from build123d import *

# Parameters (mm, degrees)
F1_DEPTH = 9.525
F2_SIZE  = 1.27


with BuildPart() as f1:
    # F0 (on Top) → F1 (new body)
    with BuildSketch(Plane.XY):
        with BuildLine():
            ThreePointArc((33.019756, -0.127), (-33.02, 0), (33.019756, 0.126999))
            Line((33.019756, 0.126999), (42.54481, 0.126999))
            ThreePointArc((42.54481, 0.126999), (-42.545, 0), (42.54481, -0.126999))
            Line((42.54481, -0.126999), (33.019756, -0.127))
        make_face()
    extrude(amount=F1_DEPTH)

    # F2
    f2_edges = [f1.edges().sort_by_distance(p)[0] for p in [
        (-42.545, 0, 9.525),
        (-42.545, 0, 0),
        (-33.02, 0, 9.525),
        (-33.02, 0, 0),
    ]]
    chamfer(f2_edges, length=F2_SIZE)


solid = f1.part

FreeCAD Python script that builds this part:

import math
import FreeCAD as App
import Part
import Sketcher
Q = App.Units.Quantity


def edges_at(feature, points):
    """Names of the edges that pass closest to the given points."""
    edges = feature.Shape.Edges
    near = lambda p: min(range(len(edges)), key=lambda i: edges[i].distToShape(Part.Vertex(*p))[0])
    return sorted({f"Edge{near(p) + 1}" for p in points})

doc = App.newDocument("Part")
params = doc.addObject("Spreadsheet::Sheet", "Params")
for row, (alias, value) in enumerate([
    ("sketch1_radius", "1.3 in"),
    ("sketch1_radius2", "1.675 in"),
    ("pad1_length", "0.375 in"),
    ("chamfer_size", "0.05 in"),
], start=1):
    params.set(f"A{row}", alias)
    params.set(f"B{row}", "=" + value)
    params.setAlias(f"B{row}", alias)

body = doc.addObject("PartDesign::Body", "Body")

# Sketch on XY plane
sketch1 = doc.addObject("Sketcher::SketchObject", "Sketch")
body.addObject(sketch1)
sketch1.AttachmentSupport = (doc.XY_Plane, [""])
sketch1.MapMode = "FlatFace"
sketch1.addGeometry([
    Part.ArcOfCircle(Part.Circle(App.Vector(0, 0, 0), App.Vector(0, 0, 1), 33.02), math.radians(0.220368), math.radians(359.779632)),
    Part.LineSegment(App.Vector(33.019756, 0.126999, 0), App.Vector(42.54481, 0.126999, 0)),
    Part.ArcOfCircle(Part.Circle(App.Vector(0, 0, 0), App.Vector(0, 0, 1), 42.545), math.radians(0.171031), math.radians(359.828969)),
    Part.LineSegment(App.Vector(42.54481, -0.126999, 0), App.Vector(33.019756, -0.127, 0)),
], False)
sketch1.addConstraint([
    Sketcher.Constraint("Coincident", 0, 1, 1, 1),
    Sketcher.Constraint("Coincident", 1, 2, 2, 1),
    Sketcher.Constraint("Coincident", 2, 2, 3, 1),
    Sketcher.Constraint("Coincident", 3, 2, 0, 2),
    Sketcher.Constraint("Horizontal", 1),
    Sketcher.Constraint("Horizontal", 3),
    Sketcher.Constraint("Coincident", 0, 3, -1, 1),
    Sketcher.Constraint("Coincident", 2, 3, -1, 1),
    Sketcher.Constraint("Vertical", 0, 1, 3, 2),
    Sketcher.Constraint("Radius", 0, Q("1.3 in")),
    Sketcher.Constraint("Radius", 2, Q("1.675 in")),
    Sketcher.Constraint("DistanceY", 2, 2, 1, 2, Q("0.0099999 in")),
])
sketch1.setExpression("Constraints[9]", "Params.sketch1_radius")
sketch1.setExpression("Constraints[10]", "Params.sketch1_radius2")
pad1 = doc.addObject("PartDesign::Pad", "Pad")
body.addObject(pad1)
pad1.Profile = sketch1
pad1.setExpression("Length", "Params.pad1_length")
doc.recompute()

chamfer = doc.addObject("PartDesign::Chamfer", "Chamfer")
body.addObject(chamfer)
chamfer.Base = (pad1, edges_at(pad1, [
    (-42.545, 0, 9.525),
    (-42.545, 0, 0),
    (-33.02, 0, 9.525),
    (-33.02, 0, 0),
]))
chamfer.setExpression("Size", "Params.chamfer_size")

doc.recompute()
